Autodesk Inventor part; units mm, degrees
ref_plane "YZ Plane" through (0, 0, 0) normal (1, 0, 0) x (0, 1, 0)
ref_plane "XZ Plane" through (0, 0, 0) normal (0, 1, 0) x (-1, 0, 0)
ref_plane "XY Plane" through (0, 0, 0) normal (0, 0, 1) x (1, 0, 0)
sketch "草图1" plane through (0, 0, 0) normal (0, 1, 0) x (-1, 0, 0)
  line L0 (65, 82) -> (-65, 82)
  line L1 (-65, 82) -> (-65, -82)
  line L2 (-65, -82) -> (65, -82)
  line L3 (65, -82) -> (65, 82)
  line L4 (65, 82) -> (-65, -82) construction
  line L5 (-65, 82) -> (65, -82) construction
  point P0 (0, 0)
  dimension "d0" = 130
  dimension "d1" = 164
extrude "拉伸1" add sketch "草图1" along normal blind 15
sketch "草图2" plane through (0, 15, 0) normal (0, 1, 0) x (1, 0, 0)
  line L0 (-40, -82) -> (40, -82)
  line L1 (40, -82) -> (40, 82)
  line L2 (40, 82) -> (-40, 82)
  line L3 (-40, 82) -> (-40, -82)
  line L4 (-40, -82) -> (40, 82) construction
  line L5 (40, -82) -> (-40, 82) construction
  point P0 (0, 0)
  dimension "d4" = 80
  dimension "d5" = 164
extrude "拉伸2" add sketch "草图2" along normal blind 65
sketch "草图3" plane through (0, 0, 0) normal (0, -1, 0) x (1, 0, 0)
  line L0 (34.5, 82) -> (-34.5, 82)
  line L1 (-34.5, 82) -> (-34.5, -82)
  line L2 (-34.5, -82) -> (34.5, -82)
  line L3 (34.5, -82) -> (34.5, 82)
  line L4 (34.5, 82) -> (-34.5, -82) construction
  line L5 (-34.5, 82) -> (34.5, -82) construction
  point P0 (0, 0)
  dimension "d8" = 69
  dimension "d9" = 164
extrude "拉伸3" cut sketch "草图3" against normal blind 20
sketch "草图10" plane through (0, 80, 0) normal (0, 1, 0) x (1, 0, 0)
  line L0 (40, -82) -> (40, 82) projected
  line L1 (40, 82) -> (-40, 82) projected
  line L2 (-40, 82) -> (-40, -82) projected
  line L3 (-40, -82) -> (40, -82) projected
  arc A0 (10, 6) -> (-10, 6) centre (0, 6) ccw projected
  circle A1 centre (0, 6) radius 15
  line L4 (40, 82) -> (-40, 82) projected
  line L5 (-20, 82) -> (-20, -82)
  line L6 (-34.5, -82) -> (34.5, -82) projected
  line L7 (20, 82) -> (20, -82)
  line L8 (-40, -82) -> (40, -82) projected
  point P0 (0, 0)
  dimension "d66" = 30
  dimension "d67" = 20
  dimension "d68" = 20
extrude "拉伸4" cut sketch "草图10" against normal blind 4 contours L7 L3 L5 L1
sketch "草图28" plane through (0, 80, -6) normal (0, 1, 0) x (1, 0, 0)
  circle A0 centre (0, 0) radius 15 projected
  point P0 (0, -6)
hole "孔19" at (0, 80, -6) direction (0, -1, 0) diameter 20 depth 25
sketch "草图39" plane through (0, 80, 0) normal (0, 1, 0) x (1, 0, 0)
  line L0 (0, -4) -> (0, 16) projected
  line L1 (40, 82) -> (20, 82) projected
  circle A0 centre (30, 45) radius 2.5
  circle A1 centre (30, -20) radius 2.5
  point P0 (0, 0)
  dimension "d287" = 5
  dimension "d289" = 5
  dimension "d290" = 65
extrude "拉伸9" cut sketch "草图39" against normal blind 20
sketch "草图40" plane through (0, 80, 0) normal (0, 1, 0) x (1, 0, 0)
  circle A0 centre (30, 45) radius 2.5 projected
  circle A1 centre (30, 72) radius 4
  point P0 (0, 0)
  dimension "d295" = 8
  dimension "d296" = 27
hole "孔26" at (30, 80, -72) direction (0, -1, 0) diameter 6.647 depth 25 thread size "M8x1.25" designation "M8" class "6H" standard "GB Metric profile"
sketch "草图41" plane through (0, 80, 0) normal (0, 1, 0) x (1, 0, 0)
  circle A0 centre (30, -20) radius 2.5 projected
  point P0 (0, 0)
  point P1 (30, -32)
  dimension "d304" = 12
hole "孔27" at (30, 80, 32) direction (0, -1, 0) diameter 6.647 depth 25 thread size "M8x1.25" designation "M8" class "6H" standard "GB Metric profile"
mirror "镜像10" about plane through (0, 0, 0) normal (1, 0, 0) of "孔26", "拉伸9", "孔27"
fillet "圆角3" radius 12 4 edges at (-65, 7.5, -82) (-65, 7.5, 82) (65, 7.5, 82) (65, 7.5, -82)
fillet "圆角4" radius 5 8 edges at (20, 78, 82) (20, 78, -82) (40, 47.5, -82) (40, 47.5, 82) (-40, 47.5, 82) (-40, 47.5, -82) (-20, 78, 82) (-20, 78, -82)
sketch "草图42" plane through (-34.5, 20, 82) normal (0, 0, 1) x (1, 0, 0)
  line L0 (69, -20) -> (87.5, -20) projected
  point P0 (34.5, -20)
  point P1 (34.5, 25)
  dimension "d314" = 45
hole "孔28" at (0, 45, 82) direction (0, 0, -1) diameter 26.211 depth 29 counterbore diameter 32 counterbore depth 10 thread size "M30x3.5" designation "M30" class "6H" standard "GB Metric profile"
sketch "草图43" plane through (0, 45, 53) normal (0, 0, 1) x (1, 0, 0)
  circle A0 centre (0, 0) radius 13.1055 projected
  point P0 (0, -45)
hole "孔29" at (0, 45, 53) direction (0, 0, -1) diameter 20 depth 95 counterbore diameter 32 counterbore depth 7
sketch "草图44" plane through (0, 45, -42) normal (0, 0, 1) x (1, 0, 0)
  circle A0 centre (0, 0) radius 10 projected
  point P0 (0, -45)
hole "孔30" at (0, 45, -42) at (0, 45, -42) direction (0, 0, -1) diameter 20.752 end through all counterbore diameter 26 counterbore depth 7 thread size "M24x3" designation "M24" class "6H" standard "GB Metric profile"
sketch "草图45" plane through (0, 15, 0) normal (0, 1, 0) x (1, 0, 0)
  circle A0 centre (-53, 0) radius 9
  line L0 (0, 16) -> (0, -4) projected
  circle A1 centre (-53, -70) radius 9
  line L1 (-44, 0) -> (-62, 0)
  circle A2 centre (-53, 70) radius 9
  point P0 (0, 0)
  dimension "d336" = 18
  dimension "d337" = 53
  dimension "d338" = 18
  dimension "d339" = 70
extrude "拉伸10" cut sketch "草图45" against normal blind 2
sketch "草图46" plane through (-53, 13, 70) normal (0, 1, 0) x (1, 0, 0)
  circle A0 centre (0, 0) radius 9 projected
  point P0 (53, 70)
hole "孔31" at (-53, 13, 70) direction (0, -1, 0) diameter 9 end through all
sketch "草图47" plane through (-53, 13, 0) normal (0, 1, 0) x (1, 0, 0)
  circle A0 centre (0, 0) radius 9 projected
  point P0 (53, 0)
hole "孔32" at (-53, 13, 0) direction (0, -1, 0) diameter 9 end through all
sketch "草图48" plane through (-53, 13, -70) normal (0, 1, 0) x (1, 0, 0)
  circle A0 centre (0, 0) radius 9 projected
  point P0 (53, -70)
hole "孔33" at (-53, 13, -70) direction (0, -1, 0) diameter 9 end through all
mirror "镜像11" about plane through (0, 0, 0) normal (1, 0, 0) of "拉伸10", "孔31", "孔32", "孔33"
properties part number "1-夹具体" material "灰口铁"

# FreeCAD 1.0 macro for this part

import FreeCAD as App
import Part
import Sketcher
from FreeCAD import Vector


def edges_at(feature, points):
    """Names of the edges that pass closest to the given points."""
    edges = feature.Shape.Edges
    near = lambda p: min(range(len(edges)), key=lambda i: edges[i].distToShape(Part.Vertex(*p))[0])
    return sorted({f"Edge{near(p) + 1}" for p in points})


def add_polygon(sketch, points):
    """Adds a closed chain of lines whose ends are joined by coincident constraints."""
    first, n = sketch.GeometryCount, len(points)
    for a, b in zip(points, points[1:] + points[:1]):
        sketch.addGeometry(Part.LineSegment(App.Vector(*a, 0), App.Vector(*b, 0)), False)
    for i in range(n):
        sketch.addConstraint(Sketcher.Constraint("Coincident", first + i, 2, first + (i + 1) % n, 1))

doc = App.newDocument("Part")
body = doc.addObject("PartDesign::Body", "Body")

sketch1 = body.newObject("Sketcher::SketchObject", "Sketch")
sketch1.AttachmentSupport = (doc.getObject("XZ_Plane"), [""])
sketch1.MapMode = "FlatFace"
add_polygon(sketch1, [(-65, -82), (-65, 82), (65, 82), (65, -82)])
sketch1.addConstraint(Sketcher.Constraint("Vertical", 0))
sketch1.addConstraint(Sketcher.Constraint("Horizontal", 1))
sketch1.addConstraint(Sketcher.Constraint("Vertical", 2))
sketch1.addConstraint(Sketcher.Constraint("Horizontal", 3))
sketch1.addConstraint(Sketcher.Constraint("Symmetric", 0, 2, 2, 2, -1, 1))
sketch1.addConstraint(Sketcher.Constraint("DistanceX", 1, 1, 1, 2, 130.0))
sketch1.addConstraint(Sketcher.Constraint("DistanceY", 0, 1, 0, 2, 164.0))
pad1 = body.newObject("PartDesign::Pad", "Pad")
pad1.Profile = sketch1
pad1.Length = 15
pad1.Reversed = True

sketch2 = body.newObject("Sketcher::SketchObject", "Sketch001")
sketch2.AttachmentSupport = (doc.getObject("XZ_Plane"), [""])
sketch2.MapMode = "FlatFace"
sketch2.AttachmentOffset = App.Placement(Vector(0, 0, -15), App.Rotation())
add_polygon(sketch2, [(-40, -82), (-40, 82), (40, 82), (40, -82)])
sketch2.addConstraint(Sketcher.Constraint("Vertical", 0))
sketch2.addConstraint(Sketcher.Constraint("Horizontal", 1))
sketch2.addConstraint(Sketcher.Constraint("Vertical", 2))
sketch2.addConstraint(Sketcher.Constraint("Horizontal", 3))
sketch2.addConstraint(Sketcher.Constraint("Symmetric", 0, 2, 2, 2, -1, 1))
sketch2.addConstraint(Sketcher.Constraint("DistanceX", 1, 1, 1, 2, 80.0))
sketch2.addConstraint(Sketcher.Constraint("DistanceY", 0, 1, 0, 2, 164.0))
pad2 = body.newObject("PartDesign::Pad", "Pad001")
pad2.Profile = sketch2
pad2.Length = 65
pad2.Reversed = True

sketch3 = body.newObject("Sketcher::SketchObject", "Sketch002")
sketch3.AttachmentSupport = (doc.getObject("XZ_Plane"), [""])
sketch3.MapMode = "FlatFace"
add_polygon(sketch3, [(34, -82), (34, 82), (-34, 82), (-34, -82)])
sketch3.addConstraint(Sketcher.Constraint("Vertical", 0))
sketch3.addConstraint(Sketcher.Constraint("Horizontal", 1))
sketch3.addConstraint(Sketcher.Constraint("Vertical", 2))
sketch3.addConstraint(Sketcher.Constraint("Horizontal", 3))
sketch3.addConstraint(Sketcher.Constraint("Symmetric", 0, 2, 2, 2, -1, 1))
sketch3.addConstraint(Sketcher.Constraint("DistanceX", 1, 2, 1, 1, 69.0))
sketch3.addConstraint(Sketcher.Constraint("DistanceY", 0, 1, 0, 2, 164.0))
pocket1 = body.newObject("PartDesign::Pocket", "Pocket")
pocket1.Profile = sketch3
pocket1.Length = 20

sketch4 = body.newObject("Sketcher::SketchObject", "Sketch003")
sketch4.AttachmentSupport = (doc.getObject("XZ_Plane"), [""])
sketch4.MapMode = "FlatFace"
sketch4.AttachmentOffset = App.Placement(Vector(0, 0, -80), App.Rotation())
add_polygon(sketch4, [(20, 82), (20, -82), (-20, -82), (-20, 82)])
sketch4.addGeometry(Part.Circle(Vector(0, -6, 0), Vector(0, 0, 1), 15), False)
sketch4.addConstraint(Sketcher.Constraint("Vertical", 0))
sketch4.addConstraint(Sketcher.Constraint("Horizontal", 1))
sketch4.addConstraint(Sketcher.Constraint("Vertical", 2))
sketch4.addConstraint(Sketcher.Constraint("Horizontal", 3))
sketch4.addConstraint(Sketcher.Constraint("Symmetric", 0, 2, 2, 2, -1, 1))
sketch4.addConstraint(Sketcher.Constraint("PointOnObject", 4, 3, -2))
sketch4.addConstraint(Sketcher.Constraint("Diameter", 4, 30.0))
sketch4.addConstraint(Sketcher.Constraint("DistanceX", -1, 1, 0, 2, 20.0))
sketch4.addConstraint(Sketcher.Constraint("DistanceY", 0, 2, 0, 1, 164.0))
sketch4.addConstraint(Sketcher.Constraint("DistanceY", 4, 3, -1, 1, 6.0))
pocket2 = body.newObject("PartDesign::Pocket", "Pocket001")
pocket2.Profile = sketch4
pocket2.Length = 4
pocket2.Reversed = True

sketch5 = body.newObject("Sketcher::SketchObject", "Sketch004")
sketch5.AttachmentSupport = (doc.getObject("XZ_Plane"), [""])
sketch5.MapMode = "FlatFace"
sketch5.AttachmentOffset = App.Placement(Vector(0, 0, -80), App.Rotation())
sketch5.addGeometry(Part.Circle(Vector(0, -6, 0), Vector(0, 0, 1), 10), False)
sketch5.addConstraint(Sketcher.Constraint("PointOnObject", 0, 3, -2))
sketch5.addConstraint(Sketcher.Constraint("Diameter", 0, 20.0))
sketch5.addConstraint(Sketcher.Constraint("DistanceY", 0, 3, -1, 1, 6.0))
doc.recompute()
hole = body.newObject("PartDesign::Hole", "Hole")
hole.Profile = sketch5
hole.ThreadType = "None"
hole.Diameter = 20
hole.DepthType = "Dimension"
hole.Depth = 25
hole.DrillPoint = "Flat"
hole.Reversed = True

sketch6 = body.newObject("Sketcher::SketchObject", "Sketch005")
sketch6.AttachmentSupport = (doc.getObject("XZ_Plane"), [""])
sketch6.MapMode = "FlatFace"
sketch6.AttachmentOffset = App.Placement(Vector(0, 0, -80), App.Rotation())
sketch6.addGeometry(Part.Circle(Vector(30, -45, 0), Vector(0, 0, 1), 2.5), False)
sketch6.addGeometry(Part.Circle(Vector(30, 20, 0), Vector(0, 0, 1), 2.5), False)
sketch6.addConstraint(Sketcher.Constraint("Equal", 0, 1))
sketch6.addConstraint(Sketcher.Constraint("Vertical", 0, 3, 1, 3))
sketch6.addConstraint(Sketcher.Constraint("Diameter", 0, 5.0))
sketch6.addConstraint(Sketcher.Constraint("DistanceY", 0, 3, 1, 3, 65.0))
sketch6.addConstraint(Sketcher.Constraint("DistanceX", -1, 1, 0, 3, 30.0))
sketch6.addConstraint(Sketcher.Constraint("DistanceY", 0, 3, -1, 1, 45.0))
pocket3 = body.newObject("PartDesign::Pocket", "Pocket002")
pocket3.Profile = sketch6
pocket3.Length = 20
pocket3.Reversed = True

sketch7 = body.newObject("Sketcher::SketchObject", "Sketch006")
sketch7.AttachmentSupport = (doc.getObject("XZ_Plane"), [""])
sketch7.MapMode = "FlatFace"
sketch7.AttachmentOffset = App.Placement(Vector(0, 0, -80), App.Rotation())
sketch7.addGeometry(Part.Circle(Vector(30, -72, 0), Vector(0, 0, 1), 3.3), False)
sketch7.addConstraint(Sketcher.Constraint("Diameter", 0, 6.647))
sketch7.addConstraint(Sketcher.Constraint("DistanceX", -1, 1, 0, 3, 30.0))
sketch7.addConstraint(Sketcher.Constraint("DistanceY", 0, 3, -1, 1, 72.0))
doc.recompute()
hole2 = body.newObject("PartDesign::Hole", "Hole001")
hole2.Profile = sketch7
hole2.ThreadType = "None"
hole2.Diameter = 6.647
hole2.DepthType = "Dimension"
hole2.Depth = 25
hole2.DrillPoint = "Flat"
hole2.Reversed = True

sketch8 = body.newObject("Sketcher::SketchObject", "Sketch007")
sketch8.AttachmentSupport = (doc.getObject("XZ_Plane"), [""])
sketch8.MapMode = "FlatFace"
sketch8.AttachmentOffset = App.Placement(Vector(0, 0, -80), App.Rotation())
sketch8.addGeometry(Part.Circle(Vector(30, 32, 0), Vector(0, 0, 1), 3.3), False)
sketch8.addConstraint(Sketcher.Constraint("Diameter", 0, 6.647))
sketch8.addConstraint(Sketcher.Constraint("DistanceX", -1, 1, 0, 3, 30.0))
sketch8.addConstraint(Sketcher.Constraint("DistanceY", -1, 1, 0, 3, 32.0))
doc.recompute()
hole3 = body.newObject("PartDesign::Hole", "Hole002")
hole3.Profile = sketch8
hole3.ThreadType = "None"
hole3.Diameter = 6.647
hole3.DepthType = "Dimension"
hole3.Depth = 25
hole3.DrillPoint = "Flat"
hole3.Reversed = True
doc.recompute()

mirrored = body.newObject("PartDesign::Mirrored", "Mirrored")
mirrored.Originals = [hole2, pocket3, hole3]
mirrored.MirrorPlane = (doc.getObject("YZ_Plane"), [""])
body.Tip = mirrored
doc.recompute()

fillet = body.newObject("PartDesign::Fillet", "Fillet")
fillet.Base = (mirrored, edges_at(mirrored, [
    (-65, 7.5, -82),
    (-65, 7.5, 82),
    (65, 7.5, 82),
    (65, 7.5, -82),
]))
fillet.Radius = 12
doc.recompute()

fillet2 = body.newObject("PartDesign::Fillet", "Fillet001")
fillet2.Base = (fillet, edges_at(fillet, [
    (20, 78, 82),
    (20, 78, -82),
    (40, 47.5, -82),
    (40, 47.5, 82),
    (-40, 47.5, 82),
    (-40, 47.5, -82),
    (-20, 78, 82),
    (-20, 78, -82),
]))
fillet2.Radius = 5

sketch9 = body.newObject("Sketcher::SketchObject", "Sketch008")
sketch9.AttachmentSupport = (doc.getObject("XY_Plane"), [""])
sketch9.MapMode = "FlatFace"
sketch9.AttachmentOffset = App.Placement(Vector(0, 0, 82), App.Rotation())
sketch9.addGeometry(Part.Circle(Vector(0, 45, 0), Vector(0, 0, 1), 13), False)
sketch9.addConstraint(Sketcher.Constraint("PointOnObject", 0, 3, -2))
sketch9.addConstraint(Sketcher.Constraint("Diameter", 0, 26.211))
sketch9.addConstraint(Sketcher.Constraint("DistanceY", -1, 1, 0, 3, 45.0))
doc.recompute()
hole4 = body.newObject("PartDesign::Hole", "Hole003")
hole4.Profile = sketch9
hole4.ThreadType = "None"
hole4.Diameter = 26.211
hole4.DepthType = "Dimension"
hole4.Depth = 29
hole4.DrillPoint = "Flat"
hole4.HoleCutType = "Counterbore"
hole4.HoleCutDiameter = 32
hole4.HoleCutDepth = 10

sketch10 = body.newObject("Sketcher::SketchObject", "Sketch009")
sketch10.AttachmentSupport = (doc.getObject("XY_Plane"), [""])
sketch10.MapMode = "FlatFace"
sketch10.AttachmentOffset = App.Placement(Vector(0, 0, 53), App.Rotation())
sketch10.addGeometry(Part.Circle(Vector(0, 45, 0), Vector(0, 0, 1), 10), False)
sketch10.addConstraint(Sketcher.Constraint("PointOnObject", 0, 3, -2))
sketch10.addConstraint(Sketcher.Constraint("Diameter", 0, 20.0))
sketch10.addConstraint(Sketcher.Constraint("DistanceY", -1, 1, 0, 3, 45.0))
doc.recompute()
hole5 = body.newObject("PartDesign::Hole", "Hole004")
hole5.Profile = sketch10
hole5.ThreadType = "None"
hole5.Diameter = 20
hole5.DepthType = "Dimension"
hole5.Depth = 95
hole5.DrillPoint = "Flat"
hole5.HoleCutType = "Counterbore"
hole5.HoleCutDiameter = 32
hole5.HoleCutDepth = 7

sketch11 = body.newObject("Sketcher::SketchObject", "Sketch010")
sketch11.AttachmentSupport = (doc.getObject("XY_Plane"), [""])
sketch11.MapMode = "FlatFace"
sketch11.AttachmentOffset = App.Placement(Vector(0, 0, -42), App.Rotation())
sketch11.addGeometry(Part.Circle(Vector(0, 45, 0), Vector(0, 0, 1), 10), False)
sketch11.addGeometry(Part.Circle(Vector(0, 45, 0), Vector(0, 0, 1), 10), False)
sketch11.addConstraint(Sketcher.Constraint("Coincident", 1, 3, 0, 3))
sketch11.addConstraint(Sketcher.Constraint("Equal", 0, 1))
sketch11.addConstraint(Sketcher.Constraint("PointOnObject", 0, 3, -2))
sketch11.addConstraint(Sketcher.Constraint("Diameter", 0, 20.752))
sketch11.addConstraint(Sketcher.Constraint("DistanceY", -1, 1, 0, 3, 45.0))
doc.recompute()
hole6 = body.newObject("PartDesign::Hole", "Hole005")
hole6.Profile = sketch11
hole6.ThreadType = "None"
hole6.Diameter = 20.752
hole6.DepthType = "ThroughAll"
hole6.HoleCutType = "Counterbore"
hole6.HoleCutDiameter = 26
hole6.HoleCutDepth = 7

sketch12 = body.newObject("Sketcher::SketchObject", "Sketch011")
sketch12.AttachmentSupport = (doc.getObject("XZ_Plane"), [""])
sketch12.MapMode = "FlatFace"
sketch12.AttachmentOffset = App.Placement(Vector(0, 0, -15), App.Rotation())
sketch12.addGeometry(Part.Circle(Vector(-53, 0, 0), Vector(0, 0, 1), 9), False)
sketch12.addGeometry(Part.Circle(Vector(-53, 70, 0), Vector(0, 0, 1), 9), False)
sketch12.addGeometry(Part.Circle(Vector(-53, -70, 0), Vector(0, 0, 1), 9), False)
sketch12.addConstraint(Sketcher.Constraint("Equal", 0, 1))
sketch12.addConstraint(Sketcher.Constraint("Equal", 1, 2))
sketch12.addConstraint(Sketcher.Constraint("Symmetric", 1, 3, 2, 3, -1))
sketch12.addConstraint(Sketcher.Constraint("PointOnObject", 0, 3, -1))
sketch12.addConstraint(Sketcher.Constraint("Vertical", 0, 3, 1, 3))
sketch12.addConstraint(Sketcher.Constraint("Diameter", 0, 18.0))
sketch12.addConstraint(Sketcher.Constraint("DistanceX", 0, 3, -1, 1, 53.0))
sketch12.addConstraint(Sketcher.Constraint("DistanceY", -1, 1, 1, 3, 70.0))
pocket4 = body.newObject("PartDesign::Pocket", "Pocket003")
pocket4.Profile = sketch12
pocket4.Length = 2
pocket4.Reversed = True

sketch13 = body.newObject("Sketcher::SketchObject", "Sketch012")
sketch13.AttachmentSupport = (doc.getObject("XZ_Plane"), [""])
sketch13.MapMode = "FlatFace"
sketch13.AttachmentOffset = App.Placement(Vector(0, 0, -13), App.Rotation())
sketch13.addGeometry(Part.Circle(Vector(-53, 70, 0), Vector(0, 0, 1), 4.5), False)
sketch13.addConstraint(Sketcher.Constraint("Diameter", 0, 9.0))
sketch13.addConstraint(Sketcher.Constraint("DistanceX", 0, 3, -1, 1, 53.0))
sketch13.addConstraint(Sketcher.Constraint("DistanceY", -1, 1, 0, 3, 70.0))
doc.recompute()
hole7 = body.newObject("PartDesign::Hole", "Hole006")
hole7.Profile = sketch13
hole7.ThreadType = "None"
hole7.Diameter = 9
hole7.DepthType = "ThroughAll"
hole7.Reversed = True

sketch14 = body.newObject("Sketcher::SketchObject", "Sketch013")
sketch14.AttachmentSupport = (doc.getObject("XZ_Plane"), [""])
sketch14.MapMode = "FlatFace"
sketch14.AttachmentOffset = App.Placement(Vector(0, 0, -13), App.Rotation())
sketch14.addGeometry(Part.Circle(Vector(-53, 0, 0), Vector(0, 0, 1), 4.5), False)
sketch14.addConstraint(Sketcher.Constraint("PointOnObject", 0, 3, -1))
sketch14.addConstraint(Sketcher.Constraint("Diameter", 0, 9.0))
sketch14.addConstraint(Sketcher.Constraint("DistanceX", 0, 3, -1, 1, 53.0))
doc.recompute()
hole8 = body.newObject("PartDesign::Hole", "Hole007")
hole8.Profile = sketch14
hole8.ThreadType = "None"
hole8.Diameter = 9
hole8.DepthType = "ThroughAll"
hole8.Reversed = True

sketch15 = body.newObject("Sketcher::SketchObject", "Sketch014")
sketch15.AttachmentSupport = (doc.getObject("XZ_Plane"), [""])
sketch15.MapMode = "FlatFace"
sketch15.AttachmentOffset = App.Placement(Vector(0, 0, -13), App.Rotation())
sketch15.addGeometry(Part.Circle(Vector(-53, -70, 0), Vector(0, 0, 1), 4.5), False)
sketch15.addConstraint(Sketcher.Constraint("Diameter", 0, 9.0))
sketch15.addConstraint(Sketcher.Constraint("DistanceX", 0, 3, -1, 1, 53.0))
sketch15.addConstraint(Sketcher.Constraint("DistanceY", 0, 3, -1, 1, 70.0))
doc.recompute()
hole9 = body.newObject("PartDesign::Hole", "Hole008")
hole9.Profile = sketch15
hole9.ThreadType = "None"
hole9.Diameter = 9
hole9.DepthType = "ThroughAll"
hole9.Reversed = True
doc.recompute()

mirrored2 = body.newObject("PartDesign::Mirrored", "Mirrored001")
mirrored2.Originals = [pocket4, hole7, hole8, hole9]
mirrored2.MirrorPlane = (doc.getObject("YZ_Plane"), [""])
body.Tip = mirrored2

doc.recompute()
